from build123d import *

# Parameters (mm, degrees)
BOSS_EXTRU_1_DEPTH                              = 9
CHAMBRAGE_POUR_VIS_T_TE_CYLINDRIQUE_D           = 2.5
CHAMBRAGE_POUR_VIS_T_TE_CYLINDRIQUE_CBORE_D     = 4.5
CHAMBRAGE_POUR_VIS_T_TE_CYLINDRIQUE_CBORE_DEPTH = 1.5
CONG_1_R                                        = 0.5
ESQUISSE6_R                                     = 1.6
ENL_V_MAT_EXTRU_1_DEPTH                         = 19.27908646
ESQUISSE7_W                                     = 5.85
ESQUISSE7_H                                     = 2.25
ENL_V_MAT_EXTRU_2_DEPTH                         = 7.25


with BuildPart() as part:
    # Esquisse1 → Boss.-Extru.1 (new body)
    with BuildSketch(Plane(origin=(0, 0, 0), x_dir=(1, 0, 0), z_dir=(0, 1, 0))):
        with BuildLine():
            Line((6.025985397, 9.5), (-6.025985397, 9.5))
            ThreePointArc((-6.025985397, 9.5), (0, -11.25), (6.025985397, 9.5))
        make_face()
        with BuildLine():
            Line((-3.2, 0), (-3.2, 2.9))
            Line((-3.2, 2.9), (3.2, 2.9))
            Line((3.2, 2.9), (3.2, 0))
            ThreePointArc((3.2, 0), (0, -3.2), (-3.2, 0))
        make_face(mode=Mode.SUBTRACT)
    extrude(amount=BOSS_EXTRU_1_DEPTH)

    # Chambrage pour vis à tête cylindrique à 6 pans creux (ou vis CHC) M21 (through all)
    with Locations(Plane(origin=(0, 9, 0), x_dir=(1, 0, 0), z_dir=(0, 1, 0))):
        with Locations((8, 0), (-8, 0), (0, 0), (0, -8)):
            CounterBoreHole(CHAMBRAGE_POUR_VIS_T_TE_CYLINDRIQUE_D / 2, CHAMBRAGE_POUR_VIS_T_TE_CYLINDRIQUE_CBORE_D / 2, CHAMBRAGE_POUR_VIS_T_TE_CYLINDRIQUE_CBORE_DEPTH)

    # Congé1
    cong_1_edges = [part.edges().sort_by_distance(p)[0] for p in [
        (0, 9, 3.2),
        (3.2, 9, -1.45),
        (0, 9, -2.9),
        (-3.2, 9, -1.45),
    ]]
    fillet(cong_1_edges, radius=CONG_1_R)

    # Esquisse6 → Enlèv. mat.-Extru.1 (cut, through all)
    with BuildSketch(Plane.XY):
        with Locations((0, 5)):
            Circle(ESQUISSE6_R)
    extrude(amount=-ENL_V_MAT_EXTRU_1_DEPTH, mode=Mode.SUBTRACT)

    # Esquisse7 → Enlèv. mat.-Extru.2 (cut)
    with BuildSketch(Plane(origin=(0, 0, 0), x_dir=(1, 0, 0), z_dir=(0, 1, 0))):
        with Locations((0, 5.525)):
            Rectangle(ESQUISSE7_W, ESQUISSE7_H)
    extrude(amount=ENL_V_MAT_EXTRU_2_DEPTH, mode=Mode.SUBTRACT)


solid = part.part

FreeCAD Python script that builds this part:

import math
import FreeCAD as App
import Part
import Sketcher
Q = App.Units.Quantity


def edges_at(feature, points):
    """Names of the edges that pass closest to the given points."""
    edges = feature.Shape.Edges
    near = lambda p: min(range(len(edges)), key=lambda i: edges[i].distToShape(Part.Vertex(*p))[0])
    return sorted({f"Edge{near(p) + 1}" for p in points})

doc = App.newDocument("Part")
body = doc.addObject("PartDesign::Body", "Body")

# Sketch on XZ plane
sketch1 = doc.addObject("Sketcher::SketchObject", "Sketch")
body.addObject(sketch1)
sketch1.AttachmentSupport = (doc.XZ_Plane, [""])
sketch1.MapMode = "FlatFace"
sketch1.addGeometry(Part.LineSegment(App.Vector(6.025985, -9.5, 0), App.Vector(-6.025985, -9.5, 0)), False)
sketch1.addGeometry(Part.ArcOfCircle(Part.Circle(App.Vector(0, 0, 0), App.Vector(0, 0, 1), 11.25), math.radians(-57.612461), math.radians(237.612461)), False)
sketch1.addGeometry(Part.ArcOfCircle(Part.Circle(App.Vector(0, 0, 0), App.Vector(0, 0, 1), 3.2), math.radians(0), math.radians(180)), False)
sketch1.addGeometry(Part.LineSegment(App.Vector(-3.2, 0, 0), App.Vector(-3.2, -2.9, 0)), False)
sketch1.addGeometry(Part.LineSegment(App.Vector(-3.2, -2.9, 0), App.Vector(3.2, -2.9, 0)), False)
sketch1.addGeometry(Part.LineSegment(App.Vector(3.2, -2.9, 0), App.Vector(3.2, 0, 0)), False)
sketch1.addConstraint(Sketcher.Constraint("Coincident", 0, 1, 1, 1))
sketch1.addConstraint(Sketcher.Constraint("Coincident", 1, 2, 0, 2))
sketch1.addConstraint(Sketcher.Constraint("Tangent", 2, 2, 3, 1))
sketch1.addConstraint(Sketcher.Constraint("Coincident", 3, 2, 4, 1))
sketch1.addConstraint(Sketcher.Constraint("Coincident", 4, 2, 5, 1))
sketch1.addConstraint(Sketcher.Constraint("Tangent", 5, 2, 2, 1))
sketch1.addConstraint(Sketcher.Constraint("Horizontal", 0))
sketch1.addConstraint(Sketcher.Constraint("Vertical", 3))
sketch1.addConstraint(Sketcher.Constraint("Horizontal", 4))
sketch1.addConstraint(Sketcher.Constraint("Vertical", 5))
sketch1.addConstraint(Sketcher.Constraint("Coincident", 1, 3, -1, 1))
sketch1.addConstraint(Sketcher.Constraint("Coincident", 2, 3, -1, 1))
sketch1.addConstraint(Sketcher.Constraint("Radius", 2, Q("3.2 mm")))
sketch1.addConstraint(Sketcher.Constraint("Radius", 1, Q("11.25 mm")))
sketch1.addConstraint(Sketcher.Constraint("DistanceY", 3, 2, 3, 1, Q("2.9 mm")))
sketch1.addConstraint(Sketcher.Constraint("DistanceY", 0, 1, -1, 1, Q("9.5 mm")))
pad1 = doc.addObject("PartDesign::Pad", "Pad")
body.addObject(pad1)
pad1.Profile = sketch1
pad1.Length = 9
pad1.Reversed = True

# Sketch on XZ plane
sketch2 = doc.addObject("Sketcher::SketchObject", "Sketch001")
body.addObject(sketch2)
sketch2.AttachmentSupport = (doc.XZ_Plane, [""])
sketch2.MapMode = "FlatFace"
sketch2.AttachmentOffset = App.Placement(App.Vector(0, 0, -9), App.Rotation())
sketch2.addGeometry(Part.Circle(App.Vector(8, 0, 0), App.Vector(0, 0, 1), 1.25), False)
sketch2.addGeometry(Part.Circle(App.Vector(-8, 0, 0), App.Vector(0, 0, 1), 1.25), False)
sketch2.addGeometry(Part.Circle(App.Vector(0, 0, 0), App.Vector(0, 0, 1), 1.25), False)
sketch2.addGeometry(Part.Circle(App.Vector(0, 8, 0), App.Vector(0, 0, 1), 1.25), False)
sketch2.addConstraint(Sketcher.Constraint("Coincident", 2, 3, -1, 1))
sketch2.addConstraint(Sketcher.Constraint("Equal", 0, 1))
sketch2.addConstraint(Sketcher.Constraint("Equal", 1, 2))
sketch2.addConstraint(Sketcher.Constraint("Equal", 2, 3))
sketch2.addConstraint(Sketcher.Constraint("Symmetric", 0, 3, 1, 3, -1, 1))
sketch2.addConstraint(Sketcher.Constraint("PointOnObject", 0, 3, -1))
sketch2.addConstraint(Sketcher.Constraint("PointOnObject", 3, 3, -2))
sketch2.addConstraint(Sketcher.Constraint("Diameter", 0, Q("2.5 mm")))
sketch2.addConstraint(Sketcher.Constraint("DistanceX", -1, 1, 0, 3, Q("8 mm")))
sketch2.addConstraint(Sketcher.Constraint("DistanceY", -1, 1, 3, 3, Q("8 mm")))
doc.recompute()
hole = doc.addObject("PartDesign::Hole", "Hole")
body.addObject(hole)
hole.Profile = sketch2
hole.ThreadType = "None"
hole.Diameter = 2.5
hole.DepthType = "ThroughAll"
hole.HoleCutType = "Counterbore"
hole.HoleCutDiameter = 4.5
hole.HoleCutDepth = 1.5
hole.Reversed = True
doc.recompute()

fillet = doc.addObject("PartDesign::Fillet", "Fillet")
body.addObject(fillet)
fillet.Base = (hole, edges_at(hole, [
    (0, 9, 3.2),
    (3.2, 9, -1.45),
    (0, 9, -2.9),
    (-3.2, 9, -1.45),
]))
fillet.Radius = 0.5

# Sketch on XY plane
sketch3 = doc.addObject("Sketcher::SketchObject", "Sketch002")
body.addObject(sketch3)
sketch3.AttachmentSupport = (doc.XY_Plane, [""])
sketch3.MapMode = "FlatFace"
sketch3.addGeometry(Part.Circle(App.Vector(0, 5, 0), App.Vector(0, 0, 1), 1.6), False)
sketch3.addConstraint(Sketcher.Constraint("PointOnObject", 0, 3, -2))
sketch3.addConstraint(Sketcher.Constraint("Diameter", 0, Q("3.2 mm")))
sketch3.addConstraint(Sketcher.Constraint("DistanceY", -1, 1, 0, 3, Q("5 mm")))
pocket1 = doc.addObject("PartDesign::Pocket", "Pocket")
body.addObject(pocket1)
pocket1.Profile = sketch3
pocket1.Type = "ThroughAll"

# Sketch on XZ plane
sketch4 = doc.addObject("Sketcher::SketchObject", "Sketch003")
body.addObject(sketch4)
sketch4.AttachmentSupport = (doc.XZ_Plane, [""])
sketch4.MapMode = "FlatFace"
sketch4.addGeometry(Part.LineSegment(App.Vector(-2.925, -6.65, 0), App.Vector(-2.925, -4.4, 0)), False)
sketch4.addGeometry(Part.LineSegment(App.Vector(-2.925, -4.4, 0), App.Vector(2.925, -4.4, 0)), False)
sketch4.addGeometry(Part.LineSegment(App.Vector(2.925, -4.4, 0), App.Vector(2.925, -6.65, 0)), False)
sketch4.addGeometry(Part.LineSegment(App.Vector(2.925, -6.65, 0), App.Vector(-2.925, -6.65, 0)), False)
sketch4.addConstraint(Sketcher.Constraint("Coincident", 0, 2, 1, 1))
sketch4.addConstraint(Sketcher.Constraint("Coincident", 1, 2, 2, 1))
sketch4.addConstraint(Sketcher.Constraint("Coincident", 2, 2, 3, 1))
sketch4.addConstraint(Sketcher.Constraint("Coincident", 3, 2, 0, 1))
sketch4.addConstraint(Sketcher.Constraint("Vertical", 0))
sketch4.addConstraint(Sketcher.Constraint("Horizontal", 1))
sketch4.addConstraint(Sketcher.Constraint("Vertical", 2))
sketch4.addConstraint(Sketcher.Constraint("Horizontal", 3))
sketch4.addConstraint(Sketcher.Constraint("DistanceX", 1, 1, 1, 2, Q("5.85 mm")))
sketch4.addConstraint(Sketcher.Constraint("DistanceY", 0, 1, 0, 2, Q("2.25 mm")))
sketch4.addConstraint(Sketcher.Constraint("DistanceY", 0, 2, -1, 1, Q("4.4 mm")))
sketch4.addConstraint(Sketcher.Constraint("DistanceX", 0, 2, -1, 1, Q("2.925 mm")))
pocket2 = doc.addObject("PartDesign::Pocket", "Pocket001")
body.addObject(pocket2)
pocket2.Profile = sketch4
pocket2.Length = 7.25

doc.recompute()
